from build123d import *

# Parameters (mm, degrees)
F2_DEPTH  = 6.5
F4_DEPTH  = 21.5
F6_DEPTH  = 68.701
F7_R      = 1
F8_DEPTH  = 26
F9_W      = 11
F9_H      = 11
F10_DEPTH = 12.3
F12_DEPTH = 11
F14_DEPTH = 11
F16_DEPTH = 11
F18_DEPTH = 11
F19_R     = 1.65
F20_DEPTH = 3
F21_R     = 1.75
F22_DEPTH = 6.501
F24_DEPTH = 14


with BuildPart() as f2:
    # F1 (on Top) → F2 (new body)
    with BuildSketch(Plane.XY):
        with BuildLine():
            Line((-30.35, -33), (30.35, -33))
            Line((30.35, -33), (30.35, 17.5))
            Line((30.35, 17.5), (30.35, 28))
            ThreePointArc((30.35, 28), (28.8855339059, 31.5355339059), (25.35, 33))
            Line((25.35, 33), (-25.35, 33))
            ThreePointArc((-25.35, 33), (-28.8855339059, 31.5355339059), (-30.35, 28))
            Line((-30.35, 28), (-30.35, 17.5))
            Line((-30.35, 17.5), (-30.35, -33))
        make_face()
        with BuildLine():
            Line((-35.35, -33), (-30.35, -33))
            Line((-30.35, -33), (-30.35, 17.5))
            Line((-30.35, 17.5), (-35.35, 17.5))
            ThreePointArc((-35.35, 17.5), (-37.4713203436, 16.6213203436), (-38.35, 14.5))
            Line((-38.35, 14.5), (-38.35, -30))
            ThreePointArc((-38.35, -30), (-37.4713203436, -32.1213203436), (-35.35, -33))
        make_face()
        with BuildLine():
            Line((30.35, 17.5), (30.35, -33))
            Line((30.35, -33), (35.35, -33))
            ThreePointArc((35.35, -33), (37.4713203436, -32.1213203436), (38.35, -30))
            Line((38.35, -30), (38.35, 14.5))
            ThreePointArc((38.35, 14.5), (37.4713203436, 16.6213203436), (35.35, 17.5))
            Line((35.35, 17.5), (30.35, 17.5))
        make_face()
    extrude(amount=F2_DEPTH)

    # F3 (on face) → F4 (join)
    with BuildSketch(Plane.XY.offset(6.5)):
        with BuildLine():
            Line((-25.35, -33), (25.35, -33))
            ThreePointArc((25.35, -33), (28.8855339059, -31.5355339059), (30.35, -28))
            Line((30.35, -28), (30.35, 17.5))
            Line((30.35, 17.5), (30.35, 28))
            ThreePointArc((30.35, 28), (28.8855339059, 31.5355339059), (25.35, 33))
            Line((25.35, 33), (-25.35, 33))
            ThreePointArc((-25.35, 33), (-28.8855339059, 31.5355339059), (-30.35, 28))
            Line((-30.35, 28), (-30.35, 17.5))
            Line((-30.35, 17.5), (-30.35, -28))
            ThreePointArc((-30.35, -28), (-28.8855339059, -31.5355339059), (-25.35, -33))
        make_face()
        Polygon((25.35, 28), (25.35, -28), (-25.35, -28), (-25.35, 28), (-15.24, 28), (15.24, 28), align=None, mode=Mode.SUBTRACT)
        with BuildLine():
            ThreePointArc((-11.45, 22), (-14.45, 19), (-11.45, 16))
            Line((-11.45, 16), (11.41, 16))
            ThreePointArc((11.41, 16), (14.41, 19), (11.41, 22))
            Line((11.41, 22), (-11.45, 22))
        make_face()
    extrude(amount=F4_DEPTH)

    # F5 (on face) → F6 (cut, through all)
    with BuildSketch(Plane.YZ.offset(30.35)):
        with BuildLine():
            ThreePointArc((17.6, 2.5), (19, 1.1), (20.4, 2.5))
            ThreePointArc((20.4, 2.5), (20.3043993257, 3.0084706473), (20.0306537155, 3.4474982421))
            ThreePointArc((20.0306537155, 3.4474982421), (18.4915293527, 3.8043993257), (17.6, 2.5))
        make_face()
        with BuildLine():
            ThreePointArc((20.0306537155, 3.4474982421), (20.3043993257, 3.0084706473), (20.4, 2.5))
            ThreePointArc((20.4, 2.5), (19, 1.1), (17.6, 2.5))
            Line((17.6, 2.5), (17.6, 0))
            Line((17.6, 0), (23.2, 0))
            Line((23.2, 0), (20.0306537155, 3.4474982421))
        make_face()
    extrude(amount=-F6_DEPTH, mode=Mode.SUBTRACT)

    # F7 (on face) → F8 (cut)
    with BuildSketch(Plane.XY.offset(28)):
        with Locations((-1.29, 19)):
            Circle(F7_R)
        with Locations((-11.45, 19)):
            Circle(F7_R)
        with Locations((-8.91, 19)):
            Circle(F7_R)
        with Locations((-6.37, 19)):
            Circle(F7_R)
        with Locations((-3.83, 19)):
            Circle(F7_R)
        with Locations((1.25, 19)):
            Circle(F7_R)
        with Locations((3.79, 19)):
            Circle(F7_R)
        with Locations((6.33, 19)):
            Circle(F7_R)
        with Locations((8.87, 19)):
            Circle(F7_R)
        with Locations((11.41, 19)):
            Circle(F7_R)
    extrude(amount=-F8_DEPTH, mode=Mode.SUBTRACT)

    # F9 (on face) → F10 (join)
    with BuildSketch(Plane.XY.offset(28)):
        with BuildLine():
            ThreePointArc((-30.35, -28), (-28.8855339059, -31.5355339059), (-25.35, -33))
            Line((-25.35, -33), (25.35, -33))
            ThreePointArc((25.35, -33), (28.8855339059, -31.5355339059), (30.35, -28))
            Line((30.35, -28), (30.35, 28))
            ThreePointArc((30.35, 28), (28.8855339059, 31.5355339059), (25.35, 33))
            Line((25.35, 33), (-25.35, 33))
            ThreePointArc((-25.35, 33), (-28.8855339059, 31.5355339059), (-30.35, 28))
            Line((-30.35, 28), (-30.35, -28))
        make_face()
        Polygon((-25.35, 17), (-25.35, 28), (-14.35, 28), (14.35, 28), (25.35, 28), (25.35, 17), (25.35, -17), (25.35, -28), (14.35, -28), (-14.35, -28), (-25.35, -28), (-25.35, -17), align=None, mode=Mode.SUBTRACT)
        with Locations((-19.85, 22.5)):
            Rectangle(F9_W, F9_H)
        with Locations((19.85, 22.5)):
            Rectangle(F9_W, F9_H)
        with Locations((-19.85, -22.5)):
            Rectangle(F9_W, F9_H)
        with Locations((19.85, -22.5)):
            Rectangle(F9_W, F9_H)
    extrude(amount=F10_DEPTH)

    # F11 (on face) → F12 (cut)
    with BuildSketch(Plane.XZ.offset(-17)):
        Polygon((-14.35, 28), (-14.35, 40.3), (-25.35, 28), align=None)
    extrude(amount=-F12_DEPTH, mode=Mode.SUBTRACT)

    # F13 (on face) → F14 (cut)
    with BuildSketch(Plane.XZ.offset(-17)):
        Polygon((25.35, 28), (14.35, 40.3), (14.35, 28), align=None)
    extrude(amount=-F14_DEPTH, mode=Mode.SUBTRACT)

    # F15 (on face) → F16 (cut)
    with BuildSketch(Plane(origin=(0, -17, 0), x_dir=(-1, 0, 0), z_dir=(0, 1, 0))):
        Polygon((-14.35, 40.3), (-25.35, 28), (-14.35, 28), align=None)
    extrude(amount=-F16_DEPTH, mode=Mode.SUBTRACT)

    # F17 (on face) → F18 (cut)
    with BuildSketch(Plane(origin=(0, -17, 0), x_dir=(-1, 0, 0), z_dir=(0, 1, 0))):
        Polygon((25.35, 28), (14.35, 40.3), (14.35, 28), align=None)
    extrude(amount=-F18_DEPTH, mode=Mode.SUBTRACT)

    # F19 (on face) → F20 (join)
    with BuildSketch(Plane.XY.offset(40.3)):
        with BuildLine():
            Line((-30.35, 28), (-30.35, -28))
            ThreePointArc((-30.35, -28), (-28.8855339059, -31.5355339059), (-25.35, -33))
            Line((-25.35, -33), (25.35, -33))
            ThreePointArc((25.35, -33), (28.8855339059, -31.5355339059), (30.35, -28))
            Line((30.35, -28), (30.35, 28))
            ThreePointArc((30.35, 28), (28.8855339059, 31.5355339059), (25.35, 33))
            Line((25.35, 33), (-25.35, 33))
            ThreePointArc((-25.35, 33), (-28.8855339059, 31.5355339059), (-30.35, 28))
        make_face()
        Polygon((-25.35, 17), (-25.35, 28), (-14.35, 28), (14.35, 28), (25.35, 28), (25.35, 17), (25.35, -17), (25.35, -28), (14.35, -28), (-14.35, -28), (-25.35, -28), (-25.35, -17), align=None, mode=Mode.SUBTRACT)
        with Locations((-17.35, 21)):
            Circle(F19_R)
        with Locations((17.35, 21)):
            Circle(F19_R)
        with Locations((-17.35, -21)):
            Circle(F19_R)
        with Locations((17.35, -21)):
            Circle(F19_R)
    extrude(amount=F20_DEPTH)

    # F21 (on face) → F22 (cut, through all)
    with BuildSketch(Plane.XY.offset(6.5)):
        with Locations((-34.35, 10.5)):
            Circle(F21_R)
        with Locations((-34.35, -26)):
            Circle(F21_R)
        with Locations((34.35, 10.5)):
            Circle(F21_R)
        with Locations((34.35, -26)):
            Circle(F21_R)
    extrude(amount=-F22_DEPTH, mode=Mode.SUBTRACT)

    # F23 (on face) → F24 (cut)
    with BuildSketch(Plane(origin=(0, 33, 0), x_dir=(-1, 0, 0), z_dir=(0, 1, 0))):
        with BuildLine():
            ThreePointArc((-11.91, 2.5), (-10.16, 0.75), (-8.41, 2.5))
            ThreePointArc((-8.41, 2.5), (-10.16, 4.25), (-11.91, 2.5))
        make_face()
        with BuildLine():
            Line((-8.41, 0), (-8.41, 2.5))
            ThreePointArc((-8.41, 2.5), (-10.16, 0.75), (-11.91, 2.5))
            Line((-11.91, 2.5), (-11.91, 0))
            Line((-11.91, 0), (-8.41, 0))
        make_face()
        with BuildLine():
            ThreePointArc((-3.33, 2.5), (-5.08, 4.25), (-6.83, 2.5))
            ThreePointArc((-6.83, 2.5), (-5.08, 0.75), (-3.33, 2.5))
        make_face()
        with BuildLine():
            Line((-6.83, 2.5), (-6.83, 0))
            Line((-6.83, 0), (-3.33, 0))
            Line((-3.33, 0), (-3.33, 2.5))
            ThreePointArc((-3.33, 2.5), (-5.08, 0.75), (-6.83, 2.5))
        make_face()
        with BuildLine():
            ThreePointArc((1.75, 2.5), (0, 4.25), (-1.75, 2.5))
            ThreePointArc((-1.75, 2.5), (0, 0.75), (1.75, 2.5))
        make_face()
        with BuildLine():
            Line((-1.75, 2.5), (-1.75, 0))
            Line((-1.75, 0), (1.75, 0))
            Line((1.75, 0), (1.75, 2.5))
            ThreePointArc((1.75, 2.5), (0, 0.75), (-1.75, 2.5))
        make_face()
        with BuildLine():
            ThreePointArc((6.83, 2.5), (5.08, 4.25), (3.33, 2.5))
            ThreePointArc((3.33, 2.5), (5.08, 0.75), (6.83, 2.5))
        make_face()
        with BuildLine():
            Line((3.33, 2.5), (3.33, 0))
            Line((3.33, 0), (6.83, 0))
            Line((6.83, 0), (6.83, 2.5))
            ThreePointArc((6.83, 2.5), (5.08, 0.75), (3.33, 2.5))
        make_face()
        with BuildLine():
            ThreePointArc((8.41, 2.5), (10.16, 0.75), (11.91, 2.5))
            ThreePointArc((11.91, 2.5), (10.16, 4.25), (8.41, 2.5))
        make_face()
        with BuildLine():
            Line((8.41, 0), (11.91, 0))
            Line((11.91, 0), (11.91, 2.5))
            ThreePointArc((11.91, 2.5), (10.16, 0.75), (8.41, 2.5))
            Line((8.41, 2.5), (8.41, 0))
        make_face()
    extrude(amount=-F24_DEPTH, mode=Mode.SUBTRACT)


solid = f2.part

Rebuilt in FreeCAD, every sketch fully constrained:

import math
import FreeCAD as App
import Part
import Sketcher
from FreeCAD import Vector

doc = App.newDocument("Part")
body = doc.addObject("PartDesign::Body", "Body")

# Sketch on XY plane
sketch1 = body.newObject("Sketcher::SketchObject", "Sketch")
sketch1.AttachmentSupport = (doc.getObject("XY_Plane"), [""])
sketch1.MapMode = "FlatFace"
sketch1.addGeometry([
    Part.LineSegment(Vector(30.35, 17.5, 0), Vector(30.35, 28, 0)),  # 0
    Part.ArcOfCircle(Part.Circle(Vector(25.35, 28, 0), Vector(0, 0, 1), 5), math.radians(0), math.radians(90)),  # 1
    Part.LineSegment(Vector(25.35, 33, 0), Vector(-25.35, 33, 0)),  # 2
    Part.ArcOfCircle(Part.Circle(Vector(-25.35, 28, 0), Vector(0, 0, 1), 5), math.radians(90), math.radians(180)),  # 3
    Part.LineSegment(Vector(-30.35, 28, 0), Vector(-30.35, 17.5, 0)),  # 4
    Part.LineSegment(Vector(-30.35, 17.5, 0), Vector(-35.35, 17.5, 0)),  # 5
    Part.ArcOfCircle(Part.Circle(Vector(-35.35, 14.5, 0), Vector(0, 0, 1), 3), math.radians(90), math.radians(180)),  # 6
    Part.LineSegment(Vector(-38.35, 14.5, 0), Vector(-38.35, -30, 0)),  # 7
    Part.ArcOfCircle(Part.Circle(Vector(-35.35, -30, 0), Vector(0, 0, 1), 3), math.radians(180), math.radians(270)),  # 8
    Part.LineSegment(Vector(-35.35, -33, 0), Vector(35.35, -33, 0)),  # 9
    Part.ArcOfCircle(Part.Circle(Vector(35.35, -30, 0), Vector(0, 0, 1), 3), math.radians(-90), math.radians(0)),  # 10
    Part.LineSegment(Vector(38.35, -30, 0), Vector(38.35, 14.5, 0)),  # 11
    Part.ArcOfCircle(Part.Circle(Vector(35.35, 14.5, 0), Vector(0, 0, 1), 3), math.radians(0), math.radians(90)),  # 12
    Part.LineSegment(Vector(35.35, 17.5, 0), Vector(30.35, 17.5, 0)),  # 13
], False)
sketch1.addConstraint([
    Sketcher.Constraint("Tangent", 0, 2, 1, 1),
    Sketcher.Constraint("Tangent", 1, 2, 2, 1),
    Sketcher.Constraint("Tangent", 2, 2, 3, 1),
    Sketcher.Constraint("Tangent", 3, 2, 4, 1),
    Sketcher.Constraint("Coincident", 4, 2, 5, 1),
    Sketcher.Constraint("Tangent", 5, 2, 6, 1),
    Sketcher.Constraint("Tangent", 6, 2, 7, 1),
    Sketcher.Constraint("Tangent", 7, 2, 8, 1),
    Sketcher.Constraint("Tangent", 8, 2, 9, 1),
    Sketcher.Constraint("Tangent", 9, 2, 10, 1),
    Sketcher.Constraint("Tangent", 10, 2, 11, 1),
    Sketcher.Constraint("Tangent", 11, 2, 12, 1),
    Sketcher.Constraint("Tangent", 12, 2, 13, 1),
    Sketcher.Constraint("Coincident", 13, 2, 0, 1),
    Sketcher.Constraint("Vertical", 0),
    Sketcher.Constraint("Horizontal", 2),
    Sketcher.Constraint("Vertical", 4),
    Sketcher.Constraint("Horizontal", 5),
    Sketcher.Constraint("Vertical", 7),
    Sketcher.Constraint("Horizontal", 9),
    Sketcher.Constraint("Vertical", 11),
    Sketcher.Constraint("Horizontal", 13),
    Sketcher.Constraint("Equal", 1, 3),
    Sketcher.Constraint("Equal", 6, 8),
    Sketcher.Constraint("Equal", 8, 10),
    Sketcher.Constraint("Equal", 10, 12),
    Sketcher.Constraint("Symmetric", 6, 3, 12, 3, -2),
    Sketcher.Constraint("Equal", 5, 13),
    Sketcher.Constraint("Radius", 1, 5.0),
    Sketcher.Constraint("Radius", 6, 3.0),
    Sketcher.Constraint("DistanceX", 5, 2, 5, 1, 5.0),
    Sketcher.Constraint("DistanceX", 2, 2, 2, 1, 50.7),
    Sketcher.Constraint("DistanceY", 0, 1, 0, 2, 10.5),
    Sketcher.Constraint("DistanceY", 7, 2, 7, 1, 44.5),
    Sketcher.Constraint("DistanceY", -1, 1, 1, 3, 28.0),
])
pad1 = body.newObject("PartDesign::Pad", "Pad")
pad1.Profile = sketch1
pad1.Length = 6.5

# Sketch on XY plane
sketch2 = body.newObject("Sketcher::SketchObject", "Sketch001")
sketch2.AttachmentSupport = (doc.getObject("XY_Plane"), [""])
sketch2.MapMode = "FlatFace"
sketch2.AttachmentOffset = App.Placement(Vector(0, 0, 6.5), App.Rotation())
sketch2.addGeometry([
    Part.LineSegment(Vector(-25.35, -33, 0), Vector(25.35, -33, 0)),  # 0
    Part.ArcOfCircle(Part.Circle(Vector(25.35, -28, 0), Vector(0, 0, 1), 5), math.radians(-90), math.radians(0)),  # 1
    Part.LineSegment(Vector(30.35, -28, 0), Vector(30.35, 28, 0)),  # 2
    Part.ArcOfCircle(Part.Circle(Vector(25.35, 28, 0), Vector(0, 0, 1), 5), math.radians(0), math.radians(90)),  # 3
    Part.LineSegment(Vector(25.35, 33, 0), Vector(-25.35, 33, 0)),  # 4
    Part.ArcOfCircle(Part.Circle(Vector(-25.35, 28, 0), Vector(0, 0, 1), 5), math.radians(90), math.radians(180)),  # 5
    Part.LineSegment(Vector(-30.35, 28, 0), Vector(-30.35, -28, 0)),  # 6
    Part.ArcOfCircle(Part.Circle(Vector(-25.35, -28, 0), Vector(0, 0, 1), 5), math.radians(180), math.radians(270)),  # 7
    Part.LineSegment(Vector(-25.35, 28, 0), Vector(25.35, 28, 0)),  # 8
    Part.LineSegment(Vector(25.35, 28, 0), Vector(25.35, -28, 0)),  # 9
    Part.LineSegment(Vector(25.35, -28, 0), Vector(-25.35, -28, 0)),  # 10
    Part.LineSegment(Vector(-25.35, -28, 0), Vector(-25.35, 28, 0)),  # 11
    Part.ArcOfCircle(Part.Circle(Vector(-11.45, 19, 0), Vector(0, 0, 1), 3), math.radians(90), math.radians(270)),  # 12
    Part.LineSegment(Vector(-11.45, 16, 0), Vector(11.41, 16, 0)),  # 13
    Part.ArcOfCircle(Part.Circle(Vector(11.41, 19, 0), Vector(0, 0, 1), 3), math.radians(-90), math.radians(90)),  # 14
    Part.LineSegment(Vector(11.41, 22, 0), Vector(-11.45, 22, 0)),  # 15
], False)
sketch2.addConstraint([
    Sketcher.Constraint("Tangent", 0, 2, 1, 1),
    Sketcher.Constraint("Tangent", 1, 2, 2, 1),
    Sketcher.Constraint("Tangent", 2, 2, 3, 1),
    Sketcher.Constraint("Tangent", 3, 2, 4, 1),
    Sketcher.Constraint("Tangent", 4, 2, 5, 1),
    Sketcher.Constraint("Tangent", 5, 2, 6, 1),
    Sketcher.Constraint("Tangent", 6, 2, 7, 1),
    Sketcher.Constraint("Tangent", 7, 2, 0, 1),
    Sketcher.Constraint("Coincident", 8, 2, 9, 1),
    Sketcher.Constraint("Coincident", 9, 2, 10, 1),
    Sketcher.Constraint("Coincident", 10, 2, 11, 1),
    Sketcher.Constraint("Coincident", 11, 2, 8, 1),
    Sketcher.Constraint("Tangent", 12, 2, 13, 1),
    Sketcher.Constraint("Tangent", 13, 2, 14, 1),
    Sketcher.Constraint("Tangent", 14, 2, 15, 1),
    Sketcher.Constraint("Tangent", 15, 2, 12, 1),
    Sketcher.Constraint("Horizontal", 0),
    Sketcher.Constraint("Vertical", 2),
    Sketcher.Constraint("Horizontal", 4),
    Sketcher.Constraint("Vertical", 6),
    Sketcher.Constraint("Horizontal", 8),
    Sketcher.Constraint("Vertical", 9),
    Sketcher.Constraint("Horizontal", 10),
    Sketcher.Constraint("Vertical", 11),
    Sketcher.Constraint("Horizontal", 13),
    Sketcher.Constraint("Horizontal", 15),
    Sketcher.Constraint("Coincident", 8, 2, 3, 3),
    Sketcher.Constraint("Coincident", 9, 2, 1, 3),
    Sketcher.Constraint("Coincident", 10, 2, 7, 3),
    Sketcher.Constraint("Equal", 3, 5),
    Sketcher.Constraint("Symmetric", 1, 3, 5, 3, -1, 1),
    Sketcher.Constraint("Radius", 1, 5.0),
    Sketcher.Constraint("Radius", 12, 3.0),
    Sketcher.Constraint("DistanceY", 2, 1, 2, 2, 56.0),
    Sketcher.Constraint("DistanceX", 0, 1, 0, 2, 50.7),
    Sketcher.Constraint("DistanceY", -1, 1, 12, 3, 19.0),
    Sketcher.Constraint("DistanceX", 13, 1, 13, 2, 22.86),
    Sketcher.Constraint("DistanceX", 5, 3, 12, 3, 13.9),
])
pad2 = body.newObject("PartDesign::Pad", "Pad001")
pad2.Profile = sketch2
pad2.Length = 21.5

# Sketch on YZ plane
sketch3 = body.newObject("Sketcher::SketchObject", "Sketch002")
sketch3.AttachmentSupport = (doc.getObject("YZ_Plane"), [""])
sketch3.MapMode = "FlatFace"
sketch3.AttachmentOffset = App.Placement(Vector(0, 0, 30.35), App.Rotation())
sketch3.addGeometry([
    Part.ArcOfCircle(Part.Circle(Vector(19, 2.5, 0), Vector(0, 0, 1), 1.4), math.radians(42.592877), math.radians(180)),
    Part.LineSegment(Vector(17.6, 2.5, 0), Vector(17.6, 0, 0)),
    Part.LineSegment(Vector(17.6, 0, 0), Vector(23.2, 0, 0)),
    Part.LineSegment(Vector(23.2, 0, 0), Vector(20.030654, 3.447498, 0)),
], False)
sketch3.addConstraint([
    Sketcher.Constraint("Tangent", 0, 2, 1, 1),
    Sketcher.Constraint("Coincident", 1, 2, 2, 1),
    Sketcher.Constraint("Coincident", 2, 2, 3, 1),
    Sketcher.Constraint("Tangent", 3, 2, 0, 1),
    Sketcher.Constraint("Vertical", 1),
    Sketcher.Constraint("Horizontal", 2),
    Sketcher.Constraint("PointOnObject", 1, 2, -1),
    Sketcher.Constraint("Radius", 0, 1.4),
    Sketcher.Constraint("DistanceX", 2, 1, 2, 2, 5.6),
    Sketcher.Constraint("DistanceY", 1, 2, 1, 1, 2.5),
    Sketcher.Constraint("DistanceX", -1, 1, 0, 3, 19.0),
])
pocket1 = body.newObject("PartDesign::Pocket", "Pocket")
pocket1.Profile = sketch3
pocket1.Type = "ThroughAll"

# Sketch on XY plane
sketch4 = body.newObject("Sketcher::SketchObject", "Sketch003")
sketch4.AttachmentSupport = (doc.getObject("XY_Plane"), [""])
sketch4.MapMode = "FlatFace"
sketch4.AttachmentOffset = App.Placement(Vector(0, 0, 28), App.Rotation())
sketch4.addGeometry([
    Part.Circle(Vector(-1.29, 19, 0), Vector(0, 0, 1), 1),  # 0
    Part.Circle(Vector(-11.45, 19, 0), Vector(0, 0, 1), 1),  # 1
    Part.Circle(Vector(-8.91, 19, 0), Vector(0, 0, 1), 1),  # 2
    Part.Circle(Vector(-6.37, 19, 0), Vector(0, 0, 1), 1),  # 3
    Part.Circle(Vector(-3.83, 19, 0), Vector(0, 0, 1), 1),  # 4
    Part.Circle(Vector(1.25, 19, 0), Vector(0, 0, 1), 1),  # 5
    Part.Circle(Vector(3.79, 19, 0), Vector(0, 0, 1), 1),  # 6
    Part.Circle(Vector(6.33, 19, 0), Vector(0, 0, 1), 1),  # 7
    Part.Circle(Vector(8.87, 19, 0), Vector(0, 0, 1), 1),  # 8
    Part.Circle(Vector(11.41, 19, 0), Vector(0, 0, 1), 1),  # 9
], False)
sketch4.addConstraint([
    Sketcher.Constraint("Equal", 0, 1),
    Sketcher.Constraint("Equal", 1, 2),
    Sketcher.Constraint("Equal", 2, 3),
    Sketcher.Constraint("Equal", 3, 4),
    Sketcher.Constraint("Equal", 4, 5),
    Sketcher.Constraint("Equal", 5, 6),
    Sketcher.Constraint("Equal", 6, 7),
    Sketcher.Constraint("Equal", 7, 8),
    Sketcher.Constraint("Equal", 8, 9),
    Sketcher.Constraint("Horizontal", 0, 3, 1, 3),
    Sketcher.Constraint("Horizontal", 1, 3, 2, 3),
    Sketcher.Constraint("Horizontal", 2, 3, 3, 3),
    Sketcher.Constraint("Horizontal", 3, 3, 4, 3),
    Sketcher.Constraint("Horizontal", 4, 3, 5, 3),
    Sketcher.Constraint("Horizontal", 5, 3, 6, 3),
    Sketcher.Constraint("Horizontal", 6, 3, 7, 3),
    Sketcher.Constraint("Horizontal", 7, 3, 8, 3),
    Sketcher.Constraint("Horizontal", 8, 3, 9, 3),
    Sketcher.Constraint("Diameter", 0, 2.0),
    Sketcher.Constraint("DistanceY", -1, 1, 0, 3, 19.0),
    Sketcher.Constraint("DistanceX", 1, 3, 5, 3, 12.7),
    Sketcher.Constraint("DistanceX", 2, 3, 6, 3, 12.7),
    Sketcher.Constraint("DistanceX", 3, 3, 7, 3, 12.7),
    Sketcher.Constraint("DistanceX", 4, 3, 8, 3, 12.7),
    Sketcher.Constraint("DistanceX", 0, 3, 9, 3, 12.7),
    Sketcher.Constraint("DistanceX", 0, 3, -1, 1, 1.29),
    Sketcher.Constraint("DistanceX", 1, 3, -1, 1, 11.45),
    Sketcher.Constraint("DistanceX", 2, 3, -1, 1, 8.91),
    Sketcher.Constraint("DistanceX", 3, 3, -1, 1, 6.37),
    Sketcher.Constraint("DistanceX", 4, 3, -1, 1, 3.83),
])
pocket2 = body.newObject("PartDesign::Pocket", "Pocket001")
pocket2.Profile = sketch4
pocket2.Length = 26

# Sketch on XY plane
sketch5 = body.newObject("Sketcher::SketchObject", "Sketch004")
sketch5.AttachmentSupport = (doc.getObject("XY_Plane"), [""])
sketch5.MapMode = "FlatFace"
sketch5.AttachmentOffset = App.Placement(Vector(0, 0, 28), App.Rotation())
sketch5.addGeometry([
    Part.ArcOfCircle(Part.Circle(Vector(-25.35, -28, 0), Vector(0, 0, 1), 5), math.radians(180), math.radians(270)),  # 0
    Part.LineSegment(Vector(-25.35, -33, 0), Vector(25.35, -33, 0)),  # 1
    Part.ArcOfCircle(Part.Circle(Vector(25.35, -28, 0), Vector(0, 0, 1), 5), math.radians(-90), math.radians(0)),  # 2
    Part.LineSegment(Vector(30.35, -28, 0), Vector(30.35, 28, 0)),  # 3
    Part.ArcOfCircle(Part.Circle(Vector(25.35, 28, 0), Vector(0, 0, 1), 5), math.radians(0), math.radians(90)),  # 4
    Part.LineSegment(Vector(25.35, 33, 0), Vector(-25.35, 33, 0)),  # 5
    Part.ArcOfCircle(Part.Circle(Vector(-25.35, 28, 0), Vector(0, 0, 1), 5), math.radians(90), math.radians(180)),  # 6
    Part.LineSegment(Vector(-30.35, 28, 0), Vector(-30.35, -28, 0)),  # 7
    Part.LineSegment(Vector(-25.35, -17, 0), Vector(-25.35, 17, 0)),  # 8
    Part.LineSegment(Vector(-25.35, 17, 0), Vector(-14.35, 17, 0)),  # 9
    Part.LineSegment(Vector(-14.35, 17, 0), Vector(-14.35, 28, 0)),  # 10
    Part.LineSegment(Vector(-14.35, 28, 0), Vector(14.35, 28, 0)),  # 11
    Part.LineSegment(Vector(14.35, 28, 0), Vector(14.35, 17, 0)),  # 12
    Part.LineSegment(Vector(14.35, 17, 0), Vector(25.35, 17, 0)),  # 13
    Part.LineSegment(Vector(25.35, 17, 0), Vector(25.35, -17, 0)),  # 14
    Part.LineSegment(Vector(25.35, -17, 0), Vector(14.35, -17, 0)),  # 15
    Part.LineSegment(Vector(14.35, -17, 0), Vector(14.35, -28, 0)),  # 16
    Part.LineSegment(Vector(14.35, -28, 0), Vector(-14.35, -28, 0)),  # 17
    Part.LineSegment(Vector(-14.35, -28, 0), Vector(-14.35, -17, 0)),  # 18
    Part.LineSegment(Vector(-14.35, -17, 0), Vector(-25.35, -17, 0)),  # 19
], False)
sketch5.addConstraint([
    Sketcher.Constraint("Tangent", 0, 2, 1, 1),
    Sketcher.Constraint("Tangent", 1, 2, 2, 1),
    Sketcher.Constraint("Tangent", 2, 2, 3, 1),
    Sketcher.Constraint("Tangent", 3, 2, 4, 1),
    Sketcher.Constraint("Tangent", 4, 2, 5, 1),
    Sketcher.Constraint("Tangent", 5, 2, 6, 1),
    Sketcher.Constraint("Tangent", 6, 2, 7, 1),
    Sketcher.Constraint("Tangent", 7, 2, 0, 1),
    Sketcher.Constraint("Coincident", 8, 2, 9, 1),
    Sketcher.Constraint("Coincident", 9, 2, 10, 1),
    Sketcher.Constraint("Coincident", 10, 2, 11, 1),
    Sketcher.Constraint("Coincident", 11, 2, 12, 1),
    Sketcher.Constraint("Coincident", 12, 2, 13, 1),
    Sketcher.Constraint("Coincident", 13, 2, 14, 1),
    Sketcher.Constraint("Coincident", 14, 2, 15, 1),
    Sketcher.Constraint("Coincident", 15, 2, 16, 1),
    Sketcher.Constraint("Coincident", 16, 2, 17, 1),
    Sketcher.Constraint("Coincident", 17, 2, 18, 1),
    Sketcher.Constraint("Coincident", 18, 2, 19, 1),
    Sketcher.Constraint("Coincident", 19, 2, 8, 1),
    Sketcher.Constraint("Horizontal", 1),
    Sketcher.Constraint("Vertical", 3),
    Sketcher.Constraint("Horizontal", 5),
    Sketcher.Constraint("Vertical", 7),
    Sketcher.Constraint("Vertical", 8),
    Sketcher.Constraint("Horizontal", 9),
    Sketcher.Constraint("Vertical", 10),
    Sketcher.Constraint("Horizontal", 11),
    Sketcher.Constraint("Vertical", 12),
    Sketcher.Constraint("Horizontal", 13),
    Sketcher.Constraint("Vertical", 14),
    Sketcher.Constraint("Horizontal", 15),
    Sketcher.Constraint("Vertical", 16),
    Sketcher.Constraint("Horizontal", 17),
    Sketcher.Constraint("Vertical", 18),
    Sketcher.Constraint("Horizontal", 19),
    Sketcher.Constraint("Equal", 0, 2),
    Sketcher.Constraint("Equal", 2, 4),
    Sketcher.Constraint("Equal", 4, 6),
    Sketcher.Constraint("Symmetric", 0, 3, 4, 3, -1, 1),
    Sketcher.Constraint("Symmetric", 8, 2, 14, 2, -1, 1),
    Sketcher.Constraint("Symmetric", 10, 2, 16, 2, -1, 1),
    Sketcher.Constraint("Symmetric", 12, 2, 18, 2, -1, 1),
    Sketcher.Constraint("Symmetric", 9, 2, 12, 2, -2),
    Sketcher.Constraint("Horizontal", 6, 2, 10, 2),
    Sketcher.Constraint("Vertical", 5, 2, 8, 2),
    Sketcher.Constraint("Equal", 19, 10),
    Sketcher.Constraint("Radius", 0, 5.0),
    Sketcher.Constraint("DistanceX", 9, 1, 9, 2, 11.0),
    Sketcher.Constraint("DistanceY", 3, 1, 3, 2, 56.0),
    Sketcher.Constraint("DistanceX", 1, 1, 1, 2, 50.7),
])
pad3 = body.newObject("PartDesign::Pad", "Pad002")
pad3.Profile = sketch5
pad3.Length = 12.3

# Sketch on XZ plane
sketch6 = body.newObject("Sketcher::SketchObject", "Sketch005")
sketch6.AttachmentSupport = (doc.getObject("XZ_Plane"), [""])
sketch6.MapMode = "FlatFace"
sketch6.AttachmentOffset = App.Placement(Vector(0, 0, -17), App.Rotation())
sketch6.addGeometry([
    Part.LineSegment(Vector(-14.35, 28, 0), Vector(-14.35, 40.3, 0)),
    Part.LineSegment(Vector(-14.35, 40.3, 0), Vector(-25.35, 28, 0)),
    Part.LineSegment(Vector(-25.35, 28, 0), Vector(-14.35, 28, 0)),
], False)
sketch6.addConstraint([
    Sketcher.Constraint("Coincident", 0, 2, 1, 1),
    Sketcher.Constraint("Coincident", 1, 2, 2, 1),
    Sketcher.Constraint("Coincident", 2, 2, 0, 1),
    Sketcher.Constraint("Vertical", 0),
    Sketcher.Constraint("Horizontal", 2),
    Sketcher.Constraint("DistanceX", 2, 1, 2, 2, 11.0),
    Sketcher.Constraint("DistanceY", 0, 1, 0, 2, 12.3),
    Sketcher.Constraint("DistanceY", -1, 1, 1, 2, 28.0),
    Sketcher.Constraint("DistanceX", 0, 2, -1, 1, 14.35),
])
pocket3 = body.newObject("PartDesign::Pocket", "Pocket002")
pocket3.Profile = sketch6
pocket3.Length = 11

# Sketch on XZ plane
sketch7 = body.newObject("Sketcher::SketchObject", "Sketch006")
sketch7.AttachmentSupport = (doc.getObject("XZ_Plane"), [""])
sketch7.MapMode = "FlatFace"
sketch7.AttachmentOffset = App.Placement(Vector(0, 0, -17), App.Rotation())
sketch7.addGeometry([
    Part.LineSegment(Vector(25.35, 28, 0), Vector(14.35, 40.3, 0)),
    Part.LineSegment(Vector(14.35, 40.3, 0), Vector(14.35, 28, 0)),
    Part.LineSegment(Vector(14.35, 28, 0), Vector(25.35, 28, 0)),
], False)
sketch7.addConstraint([
    Sketcher.Constraint("Coincident", 0, 2, 1, 1),
    Sketcher.Constraint("Coincident", 1, 2, 2, 1),
    Sketcher.Constraint("Coincident", 2, 2, 0, 1),
    Sketcher.Constraint("Vertical", 1),
    Sketcher.Constraint("Horizontal", 2),
    Sketcher.Constraint("DistanceX", 2, 1, 2, 2, 11.0),
    Sketcher.Constraint("DistanceY", 1, 2, 1, 1, 12.3),
    Sketcher.Constraint("DistanceY", -1, 1, 1, 2, 28.0),
    Sketcher.Constraint("DistanceX", -1, 1, 0, 2, 14.35),
])
pocket4 = body.newObject("PartDesign::Pocket", "Pocket003")
pocket4.Profile = sketch7
pocket4.Length = 11

# Sketch on XZ plane
sketch8 = body.newObject("Sketcher::SketchObject", "Sketch007")
sketch8.AttachmentSupport = (doc.getObject("XZ_Plane"), [""])
sketch8.MapMode = "FlatFace"
sketch8.AttachmentOffset = App.Placement(Vector(0, 0, 17), App.Rotation())
sketch8.addGeometry([
    Part.LineSegment(Vector(14.35, 40.3, 0), Vector(25.35, 28, 0)),
    Part.LineSegment(Vector(25.35, 28, 0), Vector(14.35, 28, 0)),
    Part.LineSegment(Vector(14.35, 28, 0), Vector(14.35, 40.3, 0)),
], False)
sketch8.addConstraint([
    Sketcher.Constraint("Coincident", 0, 2, 1, 1),
    Sketcher.Constraint("Coincident", 1, 2, 2, 1),
    Sketcher.Constraint("Coincident", 2, 2, 0, 1),
    Sketcher.Constraint("Horizontal", 1),
    Sketcher.Constraint("Vertical", 2),
    Sketcher.Constraint("DistanceX", 1, 2, 1, 1, 11.0),
    Sketcher.Constraint("DistanceY", 2, 1, 2, 2, 12.3),
    Sketcher.Constraint("DistanceY", -1, 1, 0, 2, 28.0),
    Sketcher.Constraint("DistanceX", -1, 1, 0, 2, 25.35),
])
pocket5 = body.newObject("PartDesign::Pocket", "Pocket004")
pocket5.Profile = sketch8
pocket5.Length = 11
pocket5.Reversed = True

# Sketch on XZ plane
sketch9 = body.newObject("Sketcher::SketchObject", "Sketch008")
sketch9.AttachmentSupport = (doc.getObject("XZ_Plane"), [""])
sketch9.MapMode = "FlatFace"
sketch9.AttachmentOffset = App.Placement(Vector(0, 0, 17), App.Rotation())
sketch9.addGeometry([
    Part.LineSegment(Vector(-25.35, 28, 0), Vector(-14.35, 40.3, 0)),
    Part.LineSegment(Vector(-14.35, 40.3, 0), Vector(-14.35, 28, 0)),
    Part.LineSegment(Vector(-14.35, 28, 0), Vector(-25.35, 28, 0)),
], False)
sketch9.addConstraint([
    Sketcher.Constraint("Coincident", 0, 2, 1, 1),
    Sketcher.Constraint("Coincident", 1, 2, 2, 1),
    Sketcher.Constraint("Coincident", 2, 2, 0, 1),
    Sketcher.Constraint("Vertical", 1),
    Sketcher.Constraint("Horizontal", 2),
    Sketcher.Constraint("DistanceX", 2, 2, 2, 1, 11.0),
    Sketcher.Constraint("DistanceY", 1, 2, 1, 1, 12.3),
    Sketcher.Constraint("DistanceY", -1, 1, 1, 2, 28.0),
    Sketcher.Constraint("DistanceX", 0, 2, -1, 1, 14.35),
])
pocket6 = body.newObject("PartDesign::Pocket", "Pocket005")
pocket6.Profile = sketch9
pocket6.Length = 11
pocket6.Reversed = True

# Sketch on XY plane
sketch10 = body.newObject("Sketcher::SketchObject", "Sketch009")
sketch10.AttachmentSupport = (doc.getObject("XY_Plane"), [""])
sketch10.MapMode = "FlatFace"
sketch10.AttachmentOffset = App.Placement(Vector(0, 0, 40.3), App.Rotation())
sketch10.addGeometry([
    Part.LineSegment(Vector(-30.35, 28, 0), Vector(-30.35, -28, 0)),  # 0
    Part.ArcOfCircle(Part.Circle(Vector(-25.35, -28, 0), Vector(0, 0, 1), 5), math.radians(180), math.radians(270)),  # 1
    Part.LineSegment(Vector(-25.35, -33, 0), Vector(25.35, -33, 0)),  # 2
    Part.ArcOfCircle(Part.Circle(Vector(25.35, -28, 0), Vector(0, 0, 1), 5), math.radians(-90), math.radians(0)),  # 3
    Part.LineSegment(Vector(30.35, -28, 0), Vector(30.35, 28, 0)),  # 4
    Part.ArcOfCircle(Part.Circle(Vector(25.35, 28, 0), Vector(0, 0, 1), 5), math.radians(0), math.radians(90)),  # 5
    Part.LineSegment(Vector(25.35, 33, 0), Vector(-25.35, 33, 0)),  # 6
    Part.ArcOfCircle(Part.Circle(Vector(-25.35, 28, 0), Vector(0, 0, 1), 5), math.radians(90), math.radians(180)),  # 7
    Part.LineSegment(Vector(-25.35, -28, 0), Vector(-25.35, 28, 0)),  # 8
    Part.LineSegment(Vector(-25.35, 28, 0), Vector(25.35, 28, 0)),  # 9
    Part.LineSegment(Vector(25.35, 28, 0), Vector(25.35, -28, 0)),  # 10
    Part.LineSegment(Vector(25.35, -28, 0), Vector(-25.35, -28, 0)),  # 11
    Part.Circle(Vector(-17.35, 21, 0), Vector(0, 0, 1), 1.65),  # 12
    Part.Circle(Vector(17.35, 21, 0), Vector(0, 0, 1), 1.65),  # 13
    Part.Circle(Vector(-17.35, -21, 0), Vector(0, 0, 1), 1.65),  # 14
    Part.Circle(Vector(17.35, -21, 0), Vector(0, 0, 1), 1.65),  # 15
], False)
sketch10.addConstraint([
    Sketcher.Constraint("Tangent", 0, 2, 1, 1),
    Sketcher.Constraint("Tangent", 1, 2, 2, 1),
    Sketcher.Constraint("Tangent", 2, 2, 3, 1),
    Sketcher.Constraint("Tangent", 3, 2, 4, 1),
    Sketcher.Constraint("Tangent", 4, 2, 5, 1),
    Sketcher.Constraint("Tangent", 5, 2, 6, 1),
    Sketcher.Constraint("Tangent", 6, 2, 7, 1),
    Sketcher.Constraint("Tangent", 7, 2, 0, 1),
    Sketcher.Constraint("Coincident", 8, 2, 9, 1),
    Sketcher.Constraint("Coincident", 9, 2, 10, 1),
    Sketcher.Constraint("Coincident", 10, 2, 11, 1),
    Sketcher.Constraint("Coincident", 11, 2, 8, 1),
    Sketcher.Constraint("Vertical", 0),
    Sketcher.Constraint("Horizontal", 2),
    Sketcher.Constraint("Vertical", 4),
    Sketcher.Constraint("Horizontal", 6),
    Sketcher.Constraint("Vertical", 8),
    Sketcher.Constraint("Horizontal", 9),
    Sketcher.Constraint("Vertical", 10),
    Sketcher.Constraint("Horizontal", 11),
    Sketcher.Constraint("Coincident", 8, 2, 7, 3),
    Sketcher.Constraint("Coincident", 9, 2, 5, 3),
    Sketcher.Constraint("Coincident", 10, 2, 3, 3),
    Sketcher.Constraint("Equal", 1, 3),
    Sketcher.Constraint("Equal", 12, 13),
    Sketcher.Constraint("Equal", 13, 14),
    Sketcher.Constraint("Equal", 14, 15),
    Sketcher.Constraint("Symmetric", 1, 3, 5, 3, -1, 1),
    Sketcher.Constraint("Symmetric", 13, 3, 14, 3, -1, 1),
    Sketcher.Constraint("Symmetric", 12, 3, 15, 3, -1, 1),
    Sketcher.Constraint("Symmetric", 12, 3, 13, 3, -2),
    Sketcher.Constraint("Radius", 1, 5.0),
    Sketcher.Constraint("Diameter", 12, 3.3),
    Sketcher.Constraint("DistanceY", 0, 2, 0, 1, 56.0),
    Sketcher.Constraint("DistanceX", 2, 1, 2, 2, 50.7),
    Sketcher.Constraint("DistanceY", -1, 1, 12, 3, 21.0),
    Sketcher.Constraint("DistanceX", 7, 3, 12, 3, 8.0),
])
pad4 = body.newObject("PartDesign::Pad", "Pad003")
pad4.Profile = sketch10
pad4.Length = 3

# Sketch on XY plane
sketch11 = body.newObject("Sketcher::SketchObject", "Sketch010")
sketch11.AttachmentSupport = (doc.getObject("XY_Plane"), [""])
sketch11.MapMode = "FlatFace"
sketch11.AttachmentOffset = App.Placement(Vector(0, 0, 6.5), App.Rotation())
sketch11.addGeometry([
    Part.Circle(Vector(-34.35, 10.5, 0), Vector(0, 0, 1), 1.75),
    Part.Circle(Vector(-34.35, -26, 0), Vector(0, 0, 1), 1.75),
    Part.Circle(Vector(34.35, 10.5, 0), Vector(0, 0, 1), 1.75),
    Part.Circle(Vector(34.35, -26, 0), Vector(0, 0, 1), 1.75),
], False)
sketch11.addConstraint([
    Sketcher.Constraint("Equal", 0, 1),
    Sketcher.Constraint("Equal", 1, 2),
    Sketcher.Constraint("Equal", 2, 3),
    Sketcher.Constraint("Symmetric", 0, 3, 2, 3, -2),
    Sketcher.Constraint("Symmetric", 1, 3, 3, 3, -2),
    Sketcher.Constraint("Vertical", 0, 3, 1, 3),
    Sketcher.Constraint("Diameter", 0, 3.5),
    Sketcher.Constraint("DistanceY", 1, 3, -1, 1, 26.0),
    Sketcher.Constraint("DistanceY", -1, 1, 0, 3, 10.5),
    Sketcher.Constraint("DistanceX", 0, 3, 2, 3, 68.7),
])
pocket7 = body.newObject("PartDesign::Pocket", "Pocket006")
pocket7.Profile = sketch11
pocket7.Type = "ThroughAll"

# Sketch on XZ plane
sketch12 = body.newObject("Sketcher::SketchObject", "Sketch011")
sketch12.AttachmentSupport = (doc.getObject("XZ_Plane"), [""])
sketch12.MapMode = "FlatFace"
sketch12.AttachmentOffset = App.Placement(Vector(0, 0, -33), App.Rotation())
sketch12.addGeometry([
    Part.ArcOfCircle(Part.Circle(Vector(10.16, 2.5, 0), Vector(0, 0, 1), 1.75), math.radians(0), math.radians(180)),  # 0
    Part.LineSegment(Vector(11.91, 2.5, 0), Vector(11.91, 0, 0)),  # 1
    Part.LineSegment(Vector(11.91, 0, 0), Vector(8.41, 0, 0)),  # 2
    Part.LineSegment(Vector(8.41, 0, 0), Vector(8.41, 2.5, 0)),  # 3
    Part.ArcOfCircle(Part.Circle(Vector(5.08, 2.5, 0), Vector(0, 0, 1), 1.75), math.radians(0), math.radians(180)),  # 4
    Part.LineSegment(Vector(6.83, 2.5, 0), Vector(6.83, 0, 0)),  # 5
    Part.LineSegment(Vector(6.83, 0, 0), Vector(3.33, 0, 0)),  # 6
    Part.LineSegment(Vector(3.33, 0, 0), Vector(3.33, 2.5, 0)),  # 7
    Part.ArcOfCircle(Part.Circle(Vector(0, 2.5, 0), Vector(0, 0, 1), 1.75), math.radians(0), math.radians(180)),  # 8
    Part.LineSegment(Vector(1.75, 2.5, 0), Vector(1.75, 0, 0)),  # 9
    Part.LineSegment(Vector(1.75, 0, 0), Vector(-1.75, 0, 0)),  # 10
    Part.LineSegment(Vector(-1.75, 0, 0), Vector(-1.75, 2.5, 0)),  # 11
    Part.ArcOfCircle(Part.Circle(Vector(-5.08, 2.5, 0), Vector(0, 0, 1), 1.75), math.radians(0), math.radians(180)),  # 12
    Part.LineSegment(Vector(-3.33, 2.5, 0), Vector(-3.33, 0, 0)),  # 13
    Part.LineSegment(Vector(-3.33, 0, 0), Vector(-6.83, 0, 0)),  # 14
    Part.LineSegment(Vector(-6.83, 0, 0), Vector(-6.83, 2.5, 0)),  # 15
    Part.ArcOfCircle(Part.Circle(Vector(-10.16, 2.5, 0), Vector(0, 0, 1), 1.75), math.radians(0), math.radians(180)),  # 16
    Part.LineSegment(Vector(-8.41, 2.5, 0), Vector(-8.41, 0, 0)),  # 17
    Part.LineSegment(Vector(-8.41, 0, 0), Vector(-11.91, 0, 0)),  # 18
    Part.LineSegment(Vector(-11.91, 0, 0), Vector(-11.91, 2.5, 0)),  # 19
], False)
sketch12.addConstraint([
    Sketcher.Constraint("Tangent", 0, 1, 1, 1),
    Sketcher.Constraint("Coincident", 1, 2, 2, 1),
    Sketcher.Constraint("Coincident", 2, 2, 3, 1),
    Sketcher.Constraint("Tangent", 3, 2, 0, 2),
    Sketcher.Constraint("Tangent", 4, 1, 5, 1),
    Sketcher.Constraint("Coincident", 5, 2, 6, 1),
    Sketcher.Constraint("Coincident", 6, 2, 7, 1),
    Sketcher.Constraint("Tangent", 7, 2, 4, 2),
    Sketcher.Constraint("Tangent", 8, 1, 9, 1),
    Sketcher.Constraint("Coincident", 9, 2, 10, 1),
    Sketcher.Constraint("Coincident", 10, 2, 11, 1),
    Sketcher.Constraint("Tangent", 11, 2, 8, 2),
    Sketcher.Constraint("Tangent", 12, 1, 13, 1),
    Sketcher.Constraint("Coincident", 13, 2, 14, 1),
    Sketcher.Constraint("Coincident", 14, 2, 15, 1),
    Sketcher.Constraint("Tangent", 15, 2, 12, 2),
    Sketcher.Constraint("Tangent", 16, 1, 17, 1),
    Sketcher.Constraint("Coincident", 17, 2, 18, 1),
    Sketcher.Constraint("Coincident", 18, 2, 19, 1),
    Sketcher.Constraint("Tangent", 19, 2, 16, 2),
    Sketcher.Constraint("Vertical", 1),
    Sketcher.Constraint("Horizontal", 2),
    Sketcher.Constraint("Vertical", 3),
    Sketcher.Constraint("Vertical", 5),
    Sketcher.Constraint("Horizontal", 6),
    Sketcher.Constraint("Vertical", 7),
    Sketcher.Constraint("Vertical", 9),
    Sketcher.Constraint("Horizontal", 10),
    Sketcher.Constraint("Vertical", 11),
    Sketcher.Constraint("Vertical", 13),
    Sketcher.Constraint("Horizontal", 14),
    Sketcher.Constraint("Vertical", 15),
    Sketcher.Constraint("Vertical", 17),
    Sketcher.Constraint("Horizontal", 18),
    Sketcher.Constraint("Vertical", 19),
    Sketcher.Constraint("Equal", 0, 4),
    Sketcher.Constraint("Equal", 4, 8),
    Sketcher.Constraint("Equal", 8, 12),
    Sketcher.Constraint("Equal", 12, 16),
    Sketcher.Constraint("Symmetric", 9, 2, 10, 2, -1, 1),
    Sketcher.Constraint("Symmetric", 6, 2, 13, 2, -1, 1),
    Sketcher.Constraint("Symmetric", 2, 2, 17, 2, -1, 1),
    Sketcher.Constraint("PointOnObject", 1, 2, -1),
    Sketcher.Constraint("PointOnObject", 5, 2, -1),
    Sketcher.Constraint("Horizontal", 0, 3, 4, 3),
    Sketcher.Constraint("Horizontal", 4, 3, 8, 3),
    Sketcher.Constraint("Horizontal", 8, 3, 12, 3),
    Sketcher.Constraint("Horizontal", 12, 3, 16, 3),
    Sketcher.Constraint("Radius", 0, 1.75),
    Sketcher.Constraint("DistanceY", 1, 2, 1, 1, 2.5),
    Sketcher.Constraint("DistanceX", -1, 1, 0, 3, 10.16),
    Sketcher.Constraint("DistanceX", -1, 1, 4, 3, 5.08),
])
pocket8 = body.newObject("PartDesign::Pocket", "Pocket007")
pocket8.Profile = sketch12
pocket8.Length = 14
pocket8.Reversed = True

doc.recompute()
